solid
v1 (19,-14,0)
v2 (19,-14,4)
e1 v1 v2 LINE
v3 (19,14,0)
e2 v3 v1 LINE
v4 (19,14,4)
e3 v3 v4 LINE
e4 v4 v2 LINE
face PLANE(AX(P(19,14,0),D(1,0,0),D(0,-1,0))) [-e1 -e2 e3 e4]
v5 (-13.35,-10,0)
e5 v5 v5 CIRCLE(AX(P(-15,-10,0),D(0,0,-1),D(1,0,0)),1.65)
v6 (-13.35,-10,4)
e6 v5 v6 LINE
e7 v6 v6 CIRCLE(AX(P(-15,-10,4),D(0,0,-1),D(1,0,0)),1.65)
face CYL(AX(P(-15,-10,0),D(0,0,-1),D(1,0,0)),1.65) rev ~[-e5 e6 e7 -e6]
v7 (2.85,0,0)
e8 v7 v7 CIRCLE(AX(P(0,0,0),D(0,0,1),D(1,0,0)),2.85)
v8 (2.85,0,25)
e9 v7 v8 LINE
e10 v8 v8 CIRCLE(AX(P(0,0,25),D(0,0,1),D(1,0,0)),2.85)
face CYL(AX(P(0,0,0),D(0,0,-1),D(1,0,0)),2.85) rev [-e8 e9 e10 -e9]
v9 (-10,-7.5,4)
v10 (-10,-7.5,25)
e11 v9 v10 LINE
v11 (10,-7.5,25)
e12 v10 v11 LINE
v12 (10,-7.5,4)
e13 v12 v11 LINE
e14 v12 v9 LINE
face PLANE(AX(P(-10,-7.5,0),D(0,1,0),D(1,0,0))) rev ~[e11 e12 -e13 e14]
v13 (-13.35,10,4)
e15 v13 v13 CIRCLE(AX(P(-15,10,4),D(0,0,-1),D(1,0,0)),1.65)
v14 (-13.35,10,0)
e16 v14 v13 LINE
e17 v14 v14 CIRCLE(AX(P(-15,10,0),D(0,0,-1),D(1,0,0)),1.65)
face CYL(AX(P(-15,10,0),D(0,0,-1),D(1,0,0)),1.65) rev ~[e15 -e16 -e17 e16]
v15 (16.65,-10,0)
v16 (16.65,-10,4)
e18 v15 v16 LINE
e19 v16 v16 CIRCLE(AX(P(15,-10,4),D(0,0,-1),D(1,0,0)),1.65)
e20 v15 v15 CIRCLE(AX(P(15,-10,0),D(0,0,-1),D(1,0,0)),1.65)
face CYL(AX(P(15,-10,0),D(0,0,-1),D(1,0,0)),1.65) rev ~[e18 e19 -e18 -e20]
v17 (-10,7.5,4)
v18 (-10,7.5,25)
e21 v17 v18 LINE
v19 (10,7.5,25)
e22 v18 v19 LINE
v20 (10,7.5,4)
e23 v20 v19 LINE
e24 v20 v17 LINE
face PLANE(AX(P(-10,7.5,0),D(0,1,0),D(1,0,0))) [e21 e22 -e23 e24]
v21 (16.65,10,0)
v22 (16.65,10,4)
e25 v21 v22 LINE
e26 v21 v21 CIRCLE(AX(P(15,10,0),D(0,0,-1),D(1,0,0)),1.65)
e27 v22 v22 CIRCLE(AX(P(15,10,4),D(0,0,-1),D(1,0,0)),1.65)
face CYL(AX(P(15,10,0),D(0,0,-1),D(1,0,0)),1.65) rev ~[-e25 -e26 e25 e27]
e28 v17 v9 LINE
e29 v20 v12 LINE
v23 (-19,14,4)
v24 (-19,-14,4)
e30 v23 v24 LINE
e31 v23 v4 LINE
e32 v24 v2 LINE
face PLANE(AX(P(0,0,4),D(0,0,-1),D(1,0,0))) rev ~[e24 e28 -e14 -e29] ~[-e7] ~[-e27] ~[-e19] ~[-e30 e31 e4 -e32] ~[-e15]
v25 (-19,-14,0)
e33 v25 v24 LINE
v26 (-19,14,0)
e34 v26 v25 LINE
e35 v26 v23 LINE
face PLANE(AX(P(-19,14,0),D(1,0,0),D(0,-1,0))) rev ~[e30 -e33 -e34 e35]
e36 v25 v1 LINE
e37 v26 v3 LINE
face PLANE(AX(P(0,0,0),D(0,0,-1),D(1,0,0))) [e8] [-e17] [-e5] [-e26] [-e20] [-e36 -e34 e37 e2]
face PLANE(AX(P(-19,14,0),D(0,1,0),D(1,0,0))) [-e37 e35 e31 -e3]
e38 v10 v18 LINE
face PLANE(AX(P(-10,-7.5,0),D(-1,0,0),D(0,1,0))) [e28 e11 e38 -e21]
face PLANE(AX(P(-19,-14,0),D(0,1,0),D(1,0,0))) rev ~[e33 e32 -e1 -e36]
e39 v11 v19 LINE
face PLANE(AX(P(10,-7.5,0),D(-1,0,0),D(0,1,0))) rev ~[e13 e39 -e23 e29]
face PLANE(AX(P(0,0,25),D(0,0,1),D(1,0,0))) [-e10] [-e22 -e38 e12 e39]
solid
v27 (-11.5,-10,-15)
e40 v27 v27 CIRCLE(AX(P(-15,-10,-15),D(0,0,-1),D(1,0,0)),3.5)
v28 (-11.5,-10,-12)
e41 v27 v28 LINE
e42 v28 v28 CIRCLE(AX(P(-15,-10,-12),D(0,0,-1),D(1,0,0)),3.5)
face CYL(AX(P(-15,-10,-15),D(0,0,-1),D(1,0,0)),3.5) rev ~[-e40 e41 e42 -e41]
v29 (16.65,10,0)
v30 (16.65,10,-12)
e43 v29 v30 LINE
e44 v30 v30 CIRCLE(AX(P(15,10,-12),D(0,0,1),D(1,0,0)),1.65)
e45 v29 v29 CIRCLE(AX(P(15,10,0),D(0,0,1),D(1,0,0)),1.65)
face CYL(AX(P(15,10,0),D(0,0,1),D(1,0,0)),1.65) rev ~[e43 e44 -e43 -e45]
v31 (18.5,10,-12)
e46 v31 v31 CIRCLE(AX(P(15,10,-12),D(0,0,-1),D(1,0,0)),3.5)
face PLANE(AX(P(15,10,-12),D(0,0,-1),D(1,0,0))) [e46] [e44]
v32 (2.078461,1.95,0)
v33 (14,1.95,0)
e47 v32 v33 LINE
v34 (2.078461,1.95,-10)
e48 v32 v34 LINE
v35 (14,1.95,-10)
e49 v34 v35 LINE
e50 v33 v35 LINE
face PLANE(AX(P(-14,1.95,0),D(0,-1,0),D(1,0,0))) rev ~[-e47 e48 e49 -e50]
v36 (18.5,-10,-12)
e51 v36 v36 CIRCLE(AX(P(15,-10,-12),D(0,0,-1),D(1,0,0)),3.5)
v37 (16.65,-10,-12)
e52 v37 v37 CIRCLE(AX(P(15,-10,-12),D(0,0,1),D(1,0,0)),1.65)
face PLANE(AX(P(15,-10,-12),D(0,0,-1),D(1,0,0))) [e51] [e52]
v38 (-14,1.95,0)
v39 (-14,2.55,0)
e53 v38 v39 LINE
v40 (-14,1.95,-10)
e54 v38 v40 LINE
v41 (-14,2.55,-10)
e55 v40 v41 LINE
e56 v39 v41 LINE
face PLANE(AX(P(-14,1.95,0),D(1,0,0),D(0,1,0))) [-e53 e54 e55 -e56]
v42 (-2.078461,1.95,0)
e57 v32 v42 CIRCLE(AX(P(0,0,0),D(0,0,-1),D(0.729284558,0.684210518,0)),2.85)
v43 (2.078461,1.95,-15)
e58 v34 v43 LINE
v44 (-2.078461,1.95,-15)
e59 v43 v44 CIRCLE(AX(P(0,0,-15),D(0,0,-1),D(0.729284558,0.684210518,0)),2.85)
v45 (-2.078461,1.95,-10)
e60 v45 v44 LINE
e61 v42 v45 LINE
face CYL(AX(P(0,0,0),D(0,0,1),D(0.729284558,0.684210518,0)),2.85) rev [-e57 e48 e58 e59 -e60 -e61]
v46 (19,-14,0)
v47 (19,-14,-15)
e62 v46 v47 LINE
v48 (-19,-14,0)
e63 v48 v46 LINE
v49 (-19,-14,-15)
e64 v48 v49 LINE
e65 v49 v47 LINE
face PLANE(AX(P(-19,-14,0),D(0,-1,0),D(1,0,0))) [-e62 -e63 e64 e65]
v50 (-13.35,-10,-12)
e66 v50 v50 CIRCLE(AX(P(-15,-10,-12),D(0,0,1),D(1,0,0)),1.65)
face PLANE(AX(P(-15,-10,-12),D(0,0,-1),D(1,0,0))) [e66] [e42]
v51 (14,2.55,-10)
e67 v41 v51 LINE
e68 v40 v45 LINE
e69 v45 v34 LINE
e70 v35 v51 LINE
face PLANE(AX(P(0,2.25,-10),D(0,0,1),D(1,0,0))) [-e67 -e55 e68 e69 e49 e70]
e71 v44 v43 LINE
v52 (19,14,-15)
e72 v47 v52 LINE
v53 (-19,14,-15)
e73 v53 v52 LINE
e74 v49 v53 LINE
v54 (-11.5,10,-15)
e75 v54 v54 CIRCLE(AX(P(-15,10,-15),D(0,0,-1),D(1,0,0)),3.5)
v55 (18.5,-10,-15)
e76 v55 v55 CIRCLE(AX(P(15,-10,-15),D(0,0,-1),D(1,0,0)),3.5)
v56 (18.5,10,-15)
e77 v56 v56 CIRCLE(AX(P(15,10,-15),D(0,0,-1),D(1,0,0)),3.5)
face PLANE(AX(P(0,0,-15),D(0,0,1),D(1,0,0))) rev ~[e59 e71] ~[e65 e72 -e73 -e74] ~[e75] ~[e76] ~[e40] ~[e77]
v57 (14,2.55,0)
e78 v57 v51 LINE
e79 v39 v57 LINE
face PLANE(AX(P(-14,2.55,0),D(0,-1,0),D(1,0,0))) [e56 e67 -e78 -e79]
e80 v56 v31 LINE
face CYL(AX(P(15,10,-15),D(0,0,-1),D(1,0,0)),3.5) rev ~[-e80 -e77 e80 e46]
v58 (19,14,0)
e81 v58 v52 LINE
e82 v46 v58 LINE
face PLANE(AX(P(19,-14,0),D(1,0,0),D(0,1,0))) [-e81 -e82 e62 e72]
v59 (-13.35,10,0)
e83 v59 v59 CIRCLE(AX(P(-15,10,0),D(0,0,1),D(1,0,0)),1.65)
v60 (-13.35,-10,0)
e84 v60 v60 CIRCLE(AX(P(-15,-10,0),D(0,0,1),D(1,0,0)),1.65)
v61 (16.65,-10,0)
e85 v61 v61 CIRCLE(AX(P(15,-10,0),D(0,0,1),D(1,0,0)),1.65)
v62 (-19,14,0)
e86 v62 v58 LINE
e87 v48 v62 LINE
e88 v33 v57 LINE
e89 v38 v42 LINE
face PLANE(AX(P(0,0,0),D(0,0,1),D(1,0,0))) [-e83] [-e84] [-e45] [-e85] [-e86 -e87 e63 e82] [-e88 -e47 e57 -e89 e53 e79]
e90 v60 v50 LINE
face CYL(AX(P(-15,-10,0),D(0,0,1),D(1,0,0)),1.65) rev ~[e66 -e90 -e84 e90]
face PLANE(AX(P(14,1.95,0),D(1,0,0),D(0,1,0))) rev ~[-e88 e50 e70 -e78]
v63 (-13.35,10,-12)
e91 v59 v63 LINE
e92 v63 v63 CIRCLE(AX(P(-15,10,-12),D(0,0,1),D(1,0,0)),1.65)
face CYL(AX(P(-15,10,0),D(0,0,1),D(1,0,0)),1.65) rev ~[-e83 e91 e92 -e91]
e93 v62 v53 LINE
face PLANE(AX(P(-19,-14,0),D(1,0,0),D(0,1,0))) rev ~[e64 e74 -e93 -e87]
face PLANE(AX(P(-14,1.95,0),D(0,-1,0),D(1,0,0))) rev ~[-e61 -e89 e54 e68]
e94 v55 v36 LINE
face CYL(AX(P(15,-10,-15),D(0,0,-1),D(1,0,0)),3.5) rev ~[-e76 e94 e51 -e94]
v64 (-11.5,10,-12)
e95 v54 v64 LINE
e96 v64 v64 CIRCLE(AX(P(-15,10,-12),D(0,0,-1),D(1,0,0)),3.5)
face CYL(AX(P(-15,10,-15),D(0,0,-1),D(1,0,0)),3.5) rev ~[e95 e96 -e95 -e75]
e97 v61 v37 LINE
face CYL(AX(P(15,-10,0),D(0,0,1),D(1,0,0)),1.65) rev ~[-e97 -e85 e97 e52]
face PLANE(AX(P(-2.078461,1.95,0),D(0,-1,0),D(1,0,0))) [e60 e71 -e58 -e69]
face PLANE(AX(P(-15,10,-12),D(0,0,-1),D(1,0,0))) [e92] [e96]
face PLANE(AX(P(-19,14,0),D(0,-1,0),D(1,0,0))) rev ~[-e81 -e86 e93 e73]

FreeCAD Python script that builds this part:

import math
import FreeCAD as App
import Part
import Sketcher

doc = App.newDocument("Part")
body = doc.addObject("PartDesign::Body", "Body")

sketch1 = body.newObject("Sketcher::SketchObject", "Sketch")
sketch1.AttachmentSupport = (doc.getObject("XY_Plane"), [""])
sketch1.MapMode = "FlatFace"
sketch1.addGeometry([
    Part.LineSegment(App.Vector(-10, 7.5, 0), App.Vector(-10, -7.5, 0)),
    Part.LineSegment(App.Vector(-10, -7.5, 0), App.Vector(10, -7.5, 0)),
    Part.LineSegment(App.Vector(10, -7.5, 0), App.Vector(10, 7.5, 0)),
    Part.LineSegment(App.Vector(10, 7.5, 0), App.Vector(-10, 7.5, 0)),
    Part.Circle(App.Vector(0, 0, 0), App.Vector(0, 0, 1), 2.9),
], False)
sketch1.addConstraint([
    Sketcher.Constraint("Coincident", 0, 2, 1, 1),
    Sketcher.Constraint("Coincident", 1, 2, 2, 1),
    Sketcher.Constraint("Coincident", 2, 2, 3, 1),
    Sketcher.Constraint("Coincident", 3, 2, 0, 1),
    Sketcher.Constraint("Vertical", 0),
    Sketcher.Constraint("Horizontal", 1),
    Sketcher.Constraint("Vertical", 2),
    Sketcher.Constraint("Horizontal", 3),
    Sketcher.Constraint("Coincident", 4, 3, -1, 1),
    Sketcher.Constraint("Symmetric", 0, 2, 2, 2, -1, 1),
    Sketcher.Constraint("Diameter", 4, 5.7),
    Sketcher.Constraint("DistanceX", 1, 1, 1, 2, 20.0),
    Sketcher.Constraint("DistanceY", 0, 2, 0, 1, 15.0),
])
pad1 = body.newObject("PartDesign::Pad", "Pad")
pad1.Profile = sketch1
pad1.Length = 25

sketch2 = body.newObject("Sketcher::SketchObject", "Sketch001")
sketch2.AttachmentSupport = (doc.getObject("XY_Plane"), [""])
sketch2.MapMode = "FlatFace"
sketch2.addGeometry([
    Part.LineSegment(App.Vector(-19, -14, 0), App.Vector(-19, 14, 0)),
    Part.LineSegment(App.Vector(-19, 14, 0), App.Vector(19, 14, 0)),
    Part.LineSegment(App.Vector(19, 14, 0), App.Vector(19, -14, 0)),
    Part.LineSegment(App.Vector(19, -14, 0), App.Vector(-19, -14, 0)),
    Part.Circle(App.Vector(-15, 10, 0), App.Vector(0, 0, 1), 1.6),
    Part.Circle(App.Vector(15, 10, 0), App.Vector(0, 0, 1), 1.6),
    Part.Circle(App.Vector(-15, -10, 0), App.Vector(0, 0, 1), 1.6),
    Part.Circle(App.Vector(0, 0, 0), App.Vector(0, 0, 1), 2.9),
    Part.Circle(App.Vector(15, -10, 0), App.Vector(0, 0, 1), 1.6),
], False)
sketch2.addConstraint([
    Sketcher.Constraint("Coincident", 0, 2, 1, 1),
    Sketcher.Constraint("Coincident", 1, 2, 2, 1),
    Sketcher.Constraint("Coincident", 2, 2, 3, 1),
    Sketcher.Constraint("Coincident", 3, 2, 0, 1),
    Sketcher.Constraint("Vertical", 0),
    Sketcher.Constraint("Horizontal", 1),
    Sketcher.Constraint("Vertical", 2),
    Sketcher.Constraint("Horizontal", 3),
    Sketcher.Constraint("Coincident", 7, 3, -1, 1),
    Sketcher.Constraint("Equal", 4, 5),
    Sketcher.Constraint("Equal", 5, 6),
    Sketcher.Constraint("Equal", 6, 8),
    Sketcher.Constraint("Symmetric", 5, 3, 6, 3, -1, 1),
    Sketcher.Constraint("Symmetric", 4, 3, 8, 3, -1, 1),
    Sketcher.Constraint("Symmetric", 0, 2, 2, 2, -1, 1),
    Sketcher.Constraint("Symmetric", 4, 3, 5, 3, -2),
    Sketcher.Constraint("Diameter", 4, 3.3),
    Sketcher.Constraint("Diameter", 7, 5.7),
    Sketcher.Constraint("DistanceX", 1, 1, 1, 2, 38.0),
    Sketcher.Constraint("DistanceY", 0, 1, 0, 2, 28.0),
    Sketcher.Constraint("DistanceX", 4, 3, -1, 1, 15.0),
    Sketcher.Constraint("DistanceY", -1, 1, 4, 3, 10.0),
])
pad2 = body.newObject("PartDesign::Pad", "Pad001")
pad2.Profile = sketch2
pad2.Length = 4
body2 = doc.addObject("PartDesign::Body", "Body001")

sketch3 = body2.newObject("Sketcher::SketchObject", "Sketch002")
sketch3.AttachmentSupport = (doc.getObject("XY_Plane001"), [""])
sketch3.MapMode = "FlatFace"
sketch3.addGeometry([
    Part.LineSegment(App.Vector(-19, 14, 0), App.Vector(-19, -14, 0)),
    Part.LineSegment(App.Vector(-19, -14, 0), App.Vector(19, -14, 0)),
    Part.LineSegment(App.Vector(19, -14, 0), App.Vector(19, 14, 0)),
    Part.LineSegment(App.Vector(19, 14, 0), App.Vector(-19, 14, 0)),
    Part.Circle(App.Vector(-15, -10, 0), App.Vector(0, 0, 1), 1.6),
    Part.Circle(App.Vector(15, -10, 0), App.Vector(0, 0, 1), 1.6),
    Part.LineSegment(App.Vector(-2.1, 1.9, 0), App.Vector(2.1, 1.9, 0)),
    Part.ArcOfCircle(Part.Circle(App.Vector(0, 0, 0), App.Vector(0, 0, 1), 2.9), math.radians(137), math.radians(403)),
    Part.Circle(App.Vector(-15, 10, 0), App.Vector(0, 0, 1), 1.6),
    Part.Circle(App.Vector(15, 10, 0), App.Vector(0, 0, 1), 1.6),
], False)
sketch3.addConstraint([
    Sketcher.Constraint("Coincident", 0, 2, 1, 1),
    Sketcher.Constraint("Coincident", 1, 2, 2, 1),
    Sketcher.Constraint("Coincident", 2, 2, 3, 1),
    Sketcher.Constraint("Coincident", 3, 2, 0, 1),
    Sketcher.Constraint("Coincident", 6, 1, 7, 1),
    Sketcher.Constraint("Coincident", 7, 2, 6, 2),
    Sketcher.Constraint("Vertical", 0),
    Sketcher.Constraint("Horizontal", 1),
    Sketcher.Constraint("Vertical", 2),
    Sketcher.Constraint("Horizontal", 3),
    Sketcher.Constraint("Horizontal", 6),
    Sketcher.Constraint("Coincident", 7, 3, -1, 1),
    Sketcher.Constraint("Equal", 4, 5),
    Sketcher.Constraint("Equal", 5, 8),
    Sketcher.Constraint("Equal", 8, 9),
    Sketcher.Constraint("Symmetric", 5, 3, 8, 3, -1, 1),
    Sketcher.Constraint("Symmetric", 4, 3, 9, 3, -1, 1),
    Sketcher.Constraint("Symmetric", 0, 2, 2, 2, -1, 1),
    Sketcher.Constraint("Symmetric", 4, 3, 5, 3, -2),
    Sketcher.Constraint("Diameter", 4, 3.3),
    Sketcher.Constraint("DistanceX", 1, 1, 1, 2, 38.0),
    Sketcher.Constraint("DistanceY", 0, 2, 0, 1, 28.0),
    Sketcher.Constraint("Radius", 7, 2.85),
    Sketcher.Constraint("DistanceX", 4, 3, -1, 1, 15.0),
    Sketcher.Constraint("DistanceY", 4, 3, -1, 1, 10.0),
    Sketcher.Constraint("DistanceY", -1, 1, 6, 1, 1.95),
])
pad3 = body2.newObject("PartDesign::Pad", "Pad002")
pad3.Profile = sketch3
pad3.Length = 15
pad3.Reversed = True

sketch4 = body2.newObject("Sketcher::SketchObject", "Sketch003")
sketch4.AttachmentSupport = (doc.getObject("XY_Plane001"), [""])
sketch4.MapMode = "FlatFace"
sketch4.addGeometry([
    Part.LineSegment(App.Vector(-14, 2.5, 0), App.Vector(-14, 1.9, 0)),
    Part.LineSegment(App.Vector(-14, 1.9, 0), App.Vector(14, 1.9, 0)),
    Part.LineSegment(App.Vector(14, 1.9, 0), App.Vector(14, 2.5, 0)),
    Part.LineSegment(App.Vector(14, 2.5, 0), App.Vector(-14, 2.5, 0)),
], False)
sketch4.addConstraint([
    Sketcher.Constraint("Coincident", 0, 2, 1, 1),
    Sketcher.Constraint("Coincident", 1, 2, 2, 1),
    Sketcher.Constraint("Coincident", 2, 2, 3, 1),
    Sketcher.Constraint("Coincident", 3, 2, 0, 1),
    Sketcher.Constraint("Vertical", 0),
    Sketcher.Constraint("Horizontal", 1),
    Sketcher.Constraint("Vertical", 2),
    Sketcher.Constraint("Horizontal", 3),
    Sketcher.Constraint("DistanceX", 1, 1, 1, 2, 28.0),
    Sketcher.Constraint("DistanceY", 0, 2, 0, 1, 0.6),
    Sketcher.Constraint("DistanceX", 0, 2, -1, 1, 14.0),
    Sketcher.Constraint("DistanceY", -1, 1, 0, 2, 1.95),
])
pocket1 = body2.newObject("PartDesign::Pocket", "Pocket")
pocket1.Profile = sketch4
pocket1.Length = 10

sketch5 = body2.newObject("Sketcher::SketchObject", "Sketch004")
sketch5.AttachmentSupport = (doc.getObject("XY_Plane001"), [""])
sketch5.MapMode = "FlatFace"
sketch5.AttachmentOffset = App.Placement(App.Vector(0, 0, -15), App.Rotation())
sketch5.addGeometry([
    Part.Circle(App.Vector(15, 10, 0), App.Vector(0, 0, 1), 3.5),
    Part.Circle(App.Vector(-15, 10, 0), App.Vector(0, 0, 1), 3.5),
    Part.Circle(App.Vector(-15, -10, 0), App.Vector(0, 0, 1), 3.5),
    Part.Circle(App.Vector(15, -10, 0), App.Vector(0, 0, 1), 3.5),
], False)
sketch5.addConstraint([
    Sketcher.Constraint("Equal", 0, 1),
    Sketcher.Constraint("Equal", 1, 2),
    Sketcher.Constraint("Equal", 2, 3),
    Sketcher.Constraint("Symmetric", 0, 3, 2, 3, -1, 1),
    Sketcher.Constraint("Symmetric", 1, 3, 3, 3, -1, 1),
    Sketcher.Constraint("Symmetric", 0, 3, 1, 3, -2),
    Sketcher.Constraint("Diameter", 0, 7.0),
    Sketcher.Constraint("DistanceX", -1, 1, 0, 3, 15.0),
    Sketcher.Constraint("DistanceY", -1, 1, 0, 3, 10.0),
])
pocket2 = body2.newObject("PartDesign::Pocket", "Pocket001")
pocket2.Profile = sketch5
pocket2.Length = 3
pocket2.Reversed = True

doc.recompute()
